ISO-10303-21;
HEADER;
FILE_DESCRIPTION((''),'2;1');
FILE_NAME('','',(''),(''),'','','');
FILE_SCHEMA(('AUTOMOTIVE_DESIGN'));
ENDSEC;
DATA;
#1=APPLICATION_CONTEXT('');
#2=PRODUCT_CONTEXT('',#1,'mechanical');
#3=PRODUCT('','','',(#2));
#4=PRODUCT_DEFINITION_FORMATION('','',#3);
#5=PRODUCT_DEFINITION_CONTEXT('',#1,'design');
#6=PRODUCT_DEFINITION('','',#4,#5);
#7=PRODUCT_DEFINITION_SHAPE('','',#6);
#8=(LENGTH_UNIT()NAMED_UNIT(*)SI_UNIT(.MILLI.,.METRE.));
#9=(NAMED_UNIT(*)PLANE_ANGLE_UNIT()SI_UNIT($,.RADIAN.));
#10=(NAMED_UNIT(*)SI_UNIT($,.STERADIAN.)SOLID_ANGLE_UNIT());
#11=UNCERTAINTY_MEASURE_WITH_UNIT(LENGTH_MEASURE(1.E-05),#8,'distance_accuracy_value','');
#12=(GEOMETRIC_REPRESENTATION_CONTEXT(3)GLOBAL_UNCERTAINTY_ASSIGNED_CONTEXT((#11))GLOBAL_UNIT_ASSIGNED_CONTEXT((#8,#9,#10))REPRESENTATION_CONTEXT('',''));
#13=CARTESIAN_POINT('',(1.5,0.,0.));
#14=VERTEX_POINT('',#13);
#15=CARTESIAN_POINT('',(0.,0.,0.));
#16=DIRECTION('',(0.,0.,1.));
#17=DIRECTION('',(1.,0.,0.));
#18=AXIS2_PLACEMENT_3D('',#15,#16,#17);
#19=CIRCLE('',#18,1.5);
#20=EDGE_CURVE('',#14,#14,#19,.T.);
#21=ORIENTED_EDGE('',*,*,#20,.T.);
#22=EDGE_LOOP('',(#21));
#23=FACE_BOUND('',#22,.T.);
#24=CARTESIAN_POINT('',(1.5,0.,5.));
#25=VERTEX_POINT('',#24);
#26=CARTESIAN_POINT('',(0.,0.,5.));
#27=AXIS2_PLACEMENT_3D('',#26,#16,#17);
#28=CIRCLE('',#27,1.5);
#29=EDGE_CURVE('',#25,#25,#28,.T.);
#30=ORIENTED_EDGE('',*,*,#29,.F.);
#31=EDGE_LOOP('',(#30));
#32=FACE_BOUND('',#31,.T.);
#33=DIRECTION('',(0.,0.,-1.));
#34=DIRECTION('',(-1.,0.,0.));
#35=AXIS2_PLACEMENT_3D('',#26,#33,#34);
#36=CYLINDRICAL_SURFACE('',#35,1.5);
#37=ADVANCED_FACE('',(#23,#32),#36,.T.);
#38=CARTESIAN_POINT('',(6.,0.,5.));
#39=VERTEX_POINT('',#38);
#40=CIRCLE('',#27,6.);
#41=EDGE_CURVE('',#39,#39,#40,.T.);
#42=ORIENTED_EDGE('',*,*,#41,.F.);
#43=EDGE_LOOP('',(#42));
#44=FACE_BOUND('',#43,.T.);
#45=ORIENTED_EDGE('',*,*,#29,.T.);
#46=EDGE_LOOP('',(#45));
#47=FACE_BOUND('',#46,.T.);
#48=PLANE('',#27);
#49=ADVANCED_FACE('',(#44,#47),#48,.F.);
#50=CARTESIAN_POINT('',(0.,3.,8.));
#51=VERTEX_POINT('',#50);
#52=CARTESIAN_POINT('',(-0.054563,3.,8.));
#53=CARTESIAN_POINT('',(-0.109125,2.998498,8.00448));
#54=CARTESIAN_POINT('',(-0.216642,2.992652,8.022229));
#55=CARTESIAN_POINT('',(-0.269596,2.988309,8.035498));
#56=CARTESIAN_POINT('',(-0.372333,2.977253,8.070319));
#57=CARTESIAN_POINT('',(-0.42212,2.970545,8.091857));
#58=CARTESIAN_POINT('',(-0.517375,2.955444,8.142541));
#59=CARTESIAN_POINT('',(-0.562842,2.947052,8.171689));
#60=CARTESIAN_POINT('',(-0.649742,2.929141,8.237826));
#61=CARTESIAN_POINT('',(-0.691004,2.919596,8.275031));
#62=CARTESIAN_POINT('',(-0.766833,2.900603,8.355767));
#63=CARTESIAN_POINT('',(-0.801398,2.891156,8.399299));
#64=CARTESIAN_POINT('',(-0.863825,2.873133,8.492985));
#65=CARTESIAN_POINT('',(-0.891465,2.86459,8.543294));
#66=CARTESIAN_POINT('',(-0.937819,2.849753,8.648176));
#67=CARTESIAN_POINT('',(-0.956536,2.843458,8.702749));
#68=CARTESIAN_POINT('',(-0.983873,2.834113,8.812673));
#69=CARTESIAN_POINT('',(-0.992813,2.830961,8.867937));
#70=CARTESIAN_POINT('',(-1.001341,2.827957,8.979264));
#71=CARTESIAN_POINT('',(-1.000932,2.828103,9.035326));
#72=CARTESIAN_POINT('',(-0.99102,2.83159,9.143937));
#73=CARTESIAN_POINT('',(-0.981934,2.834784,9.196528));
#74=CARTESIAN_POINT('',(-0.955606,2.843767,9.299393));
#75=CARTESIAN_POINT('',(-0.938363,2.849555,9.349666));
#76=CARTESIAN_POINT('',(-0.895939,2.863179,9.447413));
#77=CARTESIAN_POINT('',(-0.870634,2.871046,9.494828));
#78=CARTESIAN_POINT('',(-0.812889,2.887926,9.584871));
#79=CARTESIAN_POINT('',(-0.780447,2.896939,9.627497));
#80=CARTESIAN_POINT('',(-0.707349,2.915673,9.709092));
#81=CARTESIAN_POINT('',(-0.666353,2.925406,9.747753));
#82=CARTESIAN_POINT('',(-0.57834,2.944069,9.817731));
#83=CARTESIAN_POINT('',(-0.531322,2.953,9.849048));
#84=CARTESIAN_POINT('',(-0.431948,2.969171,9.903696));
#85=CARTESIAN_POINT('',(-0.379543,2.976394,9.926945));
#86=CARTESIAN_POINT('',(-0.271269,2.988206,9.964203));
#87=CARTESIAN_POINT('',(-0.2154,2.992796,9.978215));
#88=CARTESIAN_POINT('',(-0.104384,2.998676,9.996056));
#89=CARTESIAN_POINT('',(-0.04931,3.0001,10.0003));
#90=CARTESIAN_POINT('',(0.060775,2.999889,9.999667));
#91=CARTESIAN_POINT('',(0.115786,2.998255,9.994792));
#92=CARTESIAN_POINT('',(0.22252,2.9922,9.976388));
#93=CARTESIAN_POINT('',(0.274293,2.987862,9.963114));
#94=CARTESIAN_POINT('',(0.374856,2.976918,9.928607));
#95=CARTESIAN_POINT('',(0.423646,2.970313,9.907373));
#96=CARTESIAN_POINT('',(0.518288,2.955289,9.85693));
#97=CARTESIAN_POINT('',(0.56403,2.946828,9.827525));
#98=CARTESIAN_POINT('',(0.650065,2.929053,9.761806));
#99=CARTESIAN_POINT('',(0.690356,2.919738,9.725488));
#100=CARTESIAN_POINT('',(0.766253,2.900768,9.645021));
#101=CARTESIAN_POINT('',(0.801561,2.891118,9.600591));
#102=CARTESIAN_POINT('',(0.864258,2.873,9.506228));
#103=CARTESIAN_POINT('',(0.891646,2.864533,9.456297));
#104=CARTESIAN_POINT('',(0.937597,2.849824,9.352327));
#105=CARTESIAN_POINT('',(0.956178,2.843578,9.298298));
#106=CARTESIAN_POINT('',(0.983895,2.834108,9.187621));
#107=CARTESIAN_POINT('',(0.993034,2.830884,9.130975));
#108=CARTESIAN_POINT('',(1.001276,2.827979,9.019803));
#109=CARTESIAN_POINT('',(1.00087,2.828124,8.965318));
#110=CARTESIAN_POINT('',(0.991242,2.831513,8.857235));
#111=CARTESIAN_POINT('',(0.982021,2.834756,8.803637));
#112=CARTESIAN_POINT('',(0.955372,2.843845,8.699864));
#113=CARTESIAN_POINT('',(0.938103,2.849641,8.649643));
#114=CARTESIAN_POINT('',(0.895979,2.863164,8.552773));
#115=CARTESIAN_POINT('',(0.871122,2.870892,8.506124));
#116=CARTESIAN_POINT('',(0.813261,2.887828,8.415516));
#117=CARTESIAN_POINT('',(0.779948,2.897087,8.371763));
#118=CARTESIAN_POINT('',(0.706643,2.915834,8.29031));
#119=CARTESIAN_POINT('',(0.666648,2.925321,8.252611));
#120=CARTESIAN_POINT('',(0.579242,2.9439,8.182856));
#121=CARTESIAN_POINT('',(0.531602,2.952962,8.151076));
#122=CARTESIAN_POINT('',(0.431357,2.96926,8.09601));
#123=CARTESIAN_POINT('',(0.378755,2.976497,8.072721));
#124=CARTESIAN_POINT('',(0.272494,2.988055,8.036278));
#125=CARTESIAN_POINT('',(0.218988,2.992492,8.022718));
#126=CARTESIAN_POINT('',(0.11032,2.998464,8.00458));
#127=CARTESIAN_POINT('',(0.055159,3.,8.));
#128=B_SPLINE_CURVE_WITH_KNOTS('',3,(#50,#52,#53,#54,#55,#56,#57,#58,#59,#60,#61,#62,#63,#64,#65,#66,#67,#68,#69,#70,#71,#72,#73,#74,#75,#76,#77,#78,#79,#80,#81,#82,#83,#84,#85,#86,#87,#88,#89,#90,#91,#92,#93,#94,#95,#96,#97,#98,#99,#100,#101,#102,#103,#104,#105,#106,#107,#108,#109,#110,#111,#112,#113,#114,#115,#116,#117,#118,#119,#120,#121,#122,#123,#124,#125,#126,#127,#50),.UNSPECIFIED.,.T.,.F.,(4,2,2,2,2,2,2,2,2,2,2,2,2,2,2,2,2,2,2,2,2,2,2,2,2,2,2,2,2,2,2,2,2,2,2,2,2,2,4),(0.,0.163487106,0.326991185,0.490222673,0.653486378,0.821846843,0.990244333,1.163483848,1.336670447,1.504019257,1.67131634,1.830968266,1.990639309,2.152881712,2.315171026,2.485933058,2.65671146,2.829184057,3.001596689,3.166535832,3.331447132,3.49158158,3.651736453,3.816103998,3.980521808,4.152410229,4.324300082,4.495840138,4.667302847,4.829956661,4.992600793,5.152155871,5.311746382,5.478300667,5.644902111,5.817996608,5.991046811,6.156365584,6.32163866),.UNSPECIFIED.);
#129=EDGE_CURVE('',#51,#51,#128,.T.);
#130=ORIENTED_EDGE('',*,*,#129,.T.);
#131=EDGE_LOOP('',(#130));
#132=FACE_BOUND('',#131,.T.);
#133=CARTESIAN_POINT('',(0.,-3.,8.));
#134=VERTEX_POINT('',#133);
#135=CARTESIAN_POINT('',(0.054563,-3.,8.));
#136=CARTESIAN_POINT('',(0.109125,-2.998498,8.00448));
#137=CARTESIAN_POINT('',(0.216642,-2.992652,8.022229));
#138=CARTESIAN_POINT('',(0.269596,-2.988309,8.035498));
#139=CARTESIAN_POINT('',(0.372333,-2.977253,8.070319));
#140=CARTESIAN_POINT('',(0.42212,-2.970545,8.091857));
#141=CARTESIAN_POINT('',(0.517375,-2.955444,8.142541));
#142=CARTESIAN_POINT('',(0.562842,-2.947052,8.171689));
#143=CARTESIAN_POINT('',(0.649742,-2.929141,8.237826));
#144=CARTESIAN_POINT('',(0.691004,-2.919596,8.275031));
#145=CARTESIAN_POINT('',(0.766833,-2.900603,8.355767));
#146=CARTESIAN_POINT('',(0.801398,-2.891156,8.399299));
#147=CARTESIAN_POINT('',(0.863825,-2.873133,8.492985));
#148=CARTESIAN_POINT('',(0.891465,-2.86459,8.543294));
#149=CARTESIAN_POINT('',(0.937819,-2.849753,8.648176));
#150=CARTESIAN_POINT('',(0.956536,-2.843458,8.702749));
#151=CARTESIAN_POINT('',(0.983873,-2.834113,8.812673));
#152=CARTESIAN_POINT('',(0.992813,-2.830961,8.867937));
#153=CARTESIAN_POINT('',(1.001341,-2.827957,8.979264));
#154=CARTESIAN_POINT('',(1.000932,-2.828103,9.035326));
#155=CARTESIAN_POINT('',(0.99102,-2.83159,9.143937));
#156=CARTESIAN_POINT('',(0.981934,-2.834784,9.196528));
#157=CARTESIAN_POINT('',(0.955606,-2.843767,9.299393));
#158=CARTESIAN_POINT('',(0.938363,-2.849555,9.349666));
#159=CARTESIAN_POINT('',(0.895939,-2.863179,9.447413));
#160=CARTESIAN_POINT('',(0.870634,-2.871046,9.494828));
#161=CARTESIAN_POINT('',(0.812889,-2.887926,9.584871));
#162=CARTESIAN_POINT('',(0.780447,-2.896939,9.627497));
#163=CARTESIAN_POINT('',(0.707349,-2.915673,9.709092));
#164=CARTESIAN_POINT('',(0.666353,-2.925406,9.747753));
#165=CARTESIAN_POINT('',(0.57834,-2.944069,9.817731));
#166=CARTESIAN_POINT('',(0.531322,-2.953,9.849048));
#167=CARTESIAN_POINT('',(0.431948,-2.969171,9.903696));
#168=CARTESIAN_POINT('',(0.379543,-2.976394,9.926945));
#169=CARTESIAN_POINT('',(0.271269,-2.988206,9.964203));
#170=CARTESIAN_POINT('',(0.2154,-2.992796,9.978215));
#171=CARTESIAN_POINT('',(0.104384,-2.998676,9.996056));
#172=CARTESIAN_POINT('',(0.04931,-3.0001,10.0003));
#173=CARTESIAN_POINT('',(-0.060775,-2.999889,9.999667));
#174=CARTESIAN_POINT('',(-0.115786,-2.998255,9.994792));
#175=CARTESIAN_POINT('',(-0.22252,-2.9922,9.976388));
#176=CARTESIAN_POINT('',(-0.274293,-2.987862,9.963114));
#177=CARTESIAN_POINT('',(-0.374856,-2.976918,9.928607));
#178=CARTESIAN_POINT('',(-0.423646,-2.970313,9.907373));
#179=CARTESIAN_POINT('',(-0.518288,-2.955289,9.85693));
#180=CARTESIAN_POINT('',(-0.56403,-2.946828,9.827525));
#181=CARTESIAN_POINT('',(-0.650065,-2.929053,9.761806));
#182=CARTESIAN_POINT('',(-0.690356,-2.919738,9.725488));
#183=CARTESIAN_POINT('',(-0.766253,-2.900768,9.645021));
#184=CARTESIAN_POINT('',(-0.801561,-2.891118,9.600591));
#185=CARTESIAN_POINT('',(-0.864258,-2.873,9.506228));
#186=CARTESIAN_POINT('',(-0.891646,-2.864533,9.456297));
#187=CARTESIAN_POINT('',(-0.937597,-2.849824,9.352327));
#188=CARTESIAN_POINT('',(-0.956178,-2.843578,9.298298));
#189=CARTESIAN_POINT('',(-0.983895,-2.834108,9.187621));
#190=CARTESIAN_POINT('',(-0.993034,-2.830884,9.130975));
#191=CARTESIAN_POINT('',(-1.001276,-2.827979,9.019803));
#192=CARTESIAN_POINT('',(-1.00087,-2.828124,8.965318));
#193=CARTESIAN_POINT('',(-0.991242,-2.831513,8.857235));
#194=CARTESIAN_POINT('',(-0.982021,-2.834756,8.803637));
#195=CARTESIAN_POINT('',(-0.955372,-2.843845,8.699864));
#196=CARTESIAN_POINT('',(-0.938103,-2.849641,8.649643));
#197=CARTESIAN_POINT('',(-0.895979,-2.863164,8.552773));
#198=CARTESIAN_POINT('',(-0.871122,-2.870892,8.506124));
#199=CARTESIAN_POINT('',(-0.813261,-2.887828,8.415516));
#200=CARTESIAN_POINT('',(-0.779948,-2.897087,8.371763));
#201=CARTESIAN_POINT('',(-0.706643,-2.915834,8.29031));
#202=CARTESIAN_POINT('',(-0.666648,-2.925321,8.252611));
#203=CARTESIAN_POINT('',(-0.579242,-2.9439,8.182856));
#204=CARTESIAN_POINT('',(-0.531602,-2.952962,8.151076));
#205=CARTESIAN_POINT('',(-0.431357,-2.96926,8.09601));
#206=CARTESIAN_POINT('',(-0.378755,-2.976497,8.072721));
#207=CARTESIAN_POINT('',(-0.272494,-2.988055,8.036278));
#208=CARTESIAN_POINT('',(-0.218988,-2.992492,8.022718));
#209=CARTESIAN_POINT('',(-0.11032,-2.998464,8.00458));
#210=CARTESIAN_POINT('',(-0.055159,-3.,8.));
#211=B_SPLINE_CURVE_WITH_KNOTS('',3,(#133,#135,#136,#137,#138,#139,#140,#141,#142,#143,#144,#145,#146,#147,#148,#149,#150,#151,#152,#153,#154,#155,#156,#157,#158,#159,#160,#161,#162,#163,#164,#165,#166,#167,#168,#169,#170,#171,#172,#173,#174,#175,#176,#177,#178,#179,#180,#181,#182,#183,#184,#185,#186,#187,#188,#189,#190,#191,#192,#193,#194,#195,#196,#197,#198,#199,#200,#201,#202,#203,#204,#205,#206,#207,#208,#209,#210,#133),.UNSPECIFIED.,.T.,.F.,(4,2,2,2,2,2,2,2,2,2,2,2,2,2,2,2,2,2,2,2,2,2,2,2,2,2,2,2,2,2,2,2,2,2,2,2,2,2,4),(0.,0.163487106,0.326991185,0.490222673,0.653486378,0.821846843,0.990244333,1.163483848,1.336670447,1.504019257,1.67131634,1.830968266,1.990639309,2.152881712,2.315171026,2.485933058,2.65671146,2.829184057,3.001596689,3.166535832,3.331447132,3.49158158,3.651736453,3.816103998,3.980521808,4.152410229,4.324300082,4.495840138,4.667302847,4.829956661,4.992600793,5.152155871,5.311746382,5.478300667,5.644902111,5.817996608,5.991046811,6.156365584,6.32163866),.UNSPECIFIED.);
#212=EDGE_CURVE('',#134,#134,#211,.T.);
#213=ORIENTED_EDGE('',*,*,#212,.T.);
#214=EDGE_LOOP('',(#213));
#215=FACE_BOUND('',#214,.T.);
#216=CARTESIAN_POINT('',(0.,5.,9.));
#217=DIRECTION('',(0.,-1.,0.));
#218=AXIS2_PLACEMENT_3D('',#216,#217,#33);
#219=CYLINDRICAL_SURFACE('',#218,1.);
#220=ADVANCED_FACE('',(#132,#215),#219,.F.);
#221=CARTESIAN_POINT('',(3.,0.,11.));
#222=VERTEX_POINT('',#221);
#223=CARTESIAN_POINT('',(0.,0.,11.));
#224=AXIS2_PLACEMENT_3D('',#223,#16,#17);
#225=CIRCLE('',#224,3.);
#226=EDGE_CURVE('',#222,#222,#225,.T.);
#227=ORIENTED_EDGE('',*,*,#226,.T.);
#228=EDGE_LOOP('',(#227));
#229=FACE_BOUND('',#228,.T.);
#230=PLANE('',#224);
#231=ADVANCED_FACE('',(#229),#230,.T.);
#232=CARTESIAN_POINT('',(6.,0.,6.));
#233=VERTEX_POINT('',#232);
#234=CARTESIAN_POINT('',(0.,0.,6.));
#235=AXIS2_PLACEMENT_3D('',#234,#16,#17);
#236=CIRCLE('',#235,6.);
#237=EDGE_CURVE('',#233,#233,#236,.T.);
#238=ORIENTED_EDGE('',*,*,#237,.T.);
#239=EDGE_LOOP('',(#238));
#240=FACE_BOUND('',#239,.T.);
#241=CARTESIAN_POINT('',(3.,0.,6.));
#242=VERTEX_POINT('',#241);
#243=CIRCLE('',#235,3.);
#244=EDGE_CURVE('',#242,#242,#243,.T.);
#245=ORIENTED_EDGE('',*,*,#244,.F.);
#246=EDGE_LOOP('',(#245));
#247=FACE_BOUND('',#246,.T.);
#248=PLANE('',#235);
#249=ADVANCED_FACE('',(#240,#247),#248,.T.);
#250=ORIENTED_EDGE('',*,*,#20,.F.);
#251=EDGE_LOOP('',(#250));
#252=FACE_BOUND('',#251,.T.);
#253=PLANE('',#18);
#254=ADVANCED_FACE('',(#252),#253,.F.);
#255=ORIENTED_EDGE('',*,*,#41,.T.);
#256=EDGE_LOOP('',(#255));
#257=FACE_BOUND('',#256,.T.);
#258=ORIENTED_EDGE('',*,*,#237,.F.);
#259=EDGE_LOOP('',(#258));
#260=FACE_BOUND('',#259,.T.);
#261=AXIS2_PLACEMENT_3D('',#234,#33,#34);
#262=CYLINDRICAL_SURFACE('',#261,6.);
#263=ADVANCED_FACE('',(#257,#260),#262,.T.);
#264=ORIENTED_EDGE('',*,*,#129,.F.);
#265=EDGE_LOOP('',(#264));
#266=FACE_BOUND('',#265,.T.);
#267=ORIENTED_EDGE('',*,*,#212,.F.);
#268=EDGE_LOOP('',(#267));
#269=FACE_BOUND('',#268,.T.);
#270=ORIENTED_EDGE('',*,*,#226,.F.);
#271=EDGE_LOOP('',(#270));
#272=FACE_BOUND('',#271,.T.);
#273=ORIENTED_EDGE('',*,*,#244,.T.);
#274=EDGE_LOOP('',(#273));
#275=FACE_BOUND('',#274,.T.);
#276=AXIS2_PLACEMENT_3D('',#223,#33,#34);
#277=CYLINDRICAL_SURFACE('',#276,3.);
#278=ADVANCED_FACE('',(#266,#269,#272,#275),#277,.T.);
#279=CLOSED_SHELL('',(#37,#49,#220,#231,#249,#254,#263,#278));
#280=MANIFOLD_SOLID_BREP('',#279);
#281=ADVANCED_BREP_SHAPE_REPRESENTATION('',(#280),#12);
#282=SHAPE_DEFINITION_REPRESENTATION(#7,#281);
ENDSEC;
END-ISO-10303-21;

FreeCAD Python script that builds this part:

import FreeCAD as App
import Part
import Sketcher
from FreeCAD import Vector
Q = App.Units.Quantity

doc = App.newDocument("Part")
params = doc.addObject("Spreadsheet::Sheet", "Params")
for row, (alias, value) in enumerate([
    ("sketch1_diameter", "3 mm"),
    ("pad1_length", "5 mm"),
    ("sketch2_diameter", "12 mm"),
    ("pad2_length", "1 mm"),
    ("sketch3_diameter", "6 mm"),
    ("pad3_length", "5 mm"),
    ("sketch4_diameter", "2 mm"),
], start=1):
    params.set(f"A{row}", alias)
    params.set(f"B{row}", "=" + value)
    params.setAlias(f"B{row}", alias)

body = doc.addObject("PartDesign::Body", "Body")

# Sketch on XY plane
sketch1 = body.newObject("Sketcher::SketchObject", "Sketch")
sketch1.AttachmentSupport = (doc.getObject("XY_Plane"), [""])
sketch1.MapMode = "FlatFace"
sketch1.addGeometry(Part.Circle(Vector(0, 0, 0), Vector(0, 0, 1), 1.5), False)
sketch1.addConstraint(Sketcher.Constraint("Coincident", 0, 3, -1, 1))
sketch1.addConstraint(Sketcher.Constraint("Diameter", 0, Q("3 mm")))
sketch1.setExpression("Constraints[1]", "Params.sketch1_diameter")
pad1 = body.newObject("PartDesign::Pad", "Pad")
pad1.Profile = sketch1
pad1.setExpression("Length", "Params.pad1_length")

# Sketch on XY plane
sketch2 = body.newObject("Sketcher::SketchObject", "Sketch001")
sketch2.AttachmentSupport = (doc.getObject("XY_Plane"), [""])
sketch2.MapMode = "FlatFace"
sketch2.AttachmentOffset = App.Placement(Vector(0, 0, 5), App.Rotation())
sketch2.addGeometry(Part.Circle(Vector(0, 0, 0), Vector(0, 0, 1), 6), False)
sketch2.addConstraint(Sketcher.Constraint("Coincident", 0, 3, -1, 1))
sketch2.addConstraint(Sketcher.Constraint("Diameter", 0, Q("12 mm")))
sketch2.setExpression("Constraints[1]", "Params.sketch2_diameter")
pad2 = body.newObject("PartDesign::Pad", "Pad001")
pad2.Profile = sketch2
pad2.setExpression("Length", "Params.pad2_length")

# Sketch on XY plane
sketch3 = body.newObject("Sketcher::SketchObject", "Sketch002")
sketch3.AttachmentSupport = (doc.getObject("XY_Plane"), [""])
sketch3.MapMode = "FlatFace"
sketch3.AttachmentOffset = App.Placement(Vector(0, 0, 6), App.Rotation())
sketch3.addGeometry(Part.Circle(Vector(0, 0, 0), Vector(0, 0, 1), 3), False)
sketch3.addConstraint(Sketcher.Constraint("Coincident", 0, 3, -1, 1))
sketch3.addConstraint(Sketcher.Constraint("Diameter", 0, Q("6 mm")))
sketch3.setExpression("Constraints[1]", "Params.sketch3_diameter")
pad3 = body.newObject("PartDesign::Pad", "Pad002")
pad3.Profile = sketch3
pad3.setExpression("Length", "Params.pad3_length")

# Sketch on XZ plane
sketch4 = body.newObject("Sketcher::SketchObject", "Sketch003")
sketch4.AttachmentSupport = (doc.getObject("XZ_Plane"), [""])
sketch4.MapMode = "FlatFace"
sketch4.addGeometry(Part.Circle(Vector(0, 9, 0), Vector(0, 0, 1), 1), False)
sketch4.addConstraint(Sketcher.Constraint("PointOnObject", 0, 3, -2))
sketch4.addConstraint(Sketcher.Constraint("Diameter", 0, Q("2 mm")))
sketch4.addConstraint(Sketcher.Constraint("DistanceY", -1, 1, 0, 3, Q("9 mm")))
sketch4.setExpression("Constraints[1]", "Params.sketch4_diameter")
pocket1 = body.newObject("PartDesign::Pocket", "Pocket")
pocket1.Profile = sketch4
pocket1.Type = "ThroughAll"
pocket1.Midplane = True

doc.recompute()
